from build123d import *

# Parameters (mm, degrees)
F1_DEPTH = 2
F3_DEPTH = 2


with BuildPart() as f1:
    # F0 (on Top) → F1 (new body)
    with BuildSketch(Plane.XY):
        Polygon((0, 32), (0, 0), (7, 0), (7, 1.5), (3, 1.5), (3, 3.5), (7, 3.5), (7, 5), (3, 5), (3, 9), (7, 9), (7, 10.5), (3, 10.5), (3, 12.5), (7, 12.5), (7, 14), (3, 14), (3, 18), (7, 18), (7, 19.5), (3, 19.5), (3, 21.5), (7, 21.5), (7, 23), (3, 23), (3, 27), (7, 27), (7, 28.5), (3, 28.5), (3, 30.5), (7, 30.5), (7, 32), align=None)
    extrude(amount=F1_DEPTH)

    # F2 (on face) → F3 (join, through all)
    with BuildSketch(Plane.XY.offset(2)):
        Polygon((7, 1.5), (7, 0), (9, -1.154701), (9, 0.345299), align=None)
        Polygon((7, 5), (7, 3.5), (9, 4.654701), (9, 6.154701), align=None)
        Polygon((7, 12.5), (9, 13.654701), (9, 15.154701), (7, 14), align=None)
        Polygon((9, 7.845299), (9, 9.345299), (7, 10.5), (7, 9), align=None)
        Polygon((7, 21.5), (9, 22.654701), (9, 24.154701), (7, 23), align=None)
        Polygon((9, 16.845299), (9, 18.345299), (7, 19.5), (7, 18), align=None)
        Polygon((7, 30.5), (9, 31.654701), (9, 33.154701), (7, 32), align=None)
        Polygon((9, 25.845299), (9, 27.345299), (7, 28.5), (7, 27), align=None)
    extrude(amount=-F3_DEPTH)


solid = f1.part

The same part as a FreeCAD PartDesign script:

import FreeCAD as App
import Part
import Sketcher
Q = App.Units.Quantity

doc = App.newDocument("Part")
body = doc.addObject("PartDesign::Body", "Body")

# Sketch on XY plane
sketch1 = body.newObject("Sketcher::SketchObject", "Sketch")
sketch1.AttachmentSupport = (doc.getObject("XY_Plane"), [""])
sketch1.MapMode = "FlatFace"
sketch1.addGeometry(Part.LineSegment(App.Vector(0, 32, 0), App.Vector(0, 0, 0)), False)
sketch1.addGeometry(Part.LineSegment(App.Vector(0, 0, 0), App.Vector(7, 0, 0)), False)
sketch1.addGeometry(Part.LineSegment(App.Vector(7, 0, 0), App.Vector(7, 1.5, 0)), False)
sketch1.addGeometry(Part.LineSegment(App.Vector(7, 1.5, 0), App.Vector(3, 1.5, 0)), False)
sketch1.addGeometry(Part.LineSegment(App.Vector(3, 1.5, 0), App.Vector(3, 3.5, 0)), False)
sketch1.addGeometry(Part.LineSegment(App.Vector(3, 3.5, 0), App.Vector(7, 3.5, 0)), False)
sketch1.addGeometry(Part.LineSegment(App.Vector(7, 3.5, 0), App.Vector(7, 5, 0)), False)
sketch1.addGeometry(Part.LineSegment(App.Vector(7, 5, 0), App.Vector(3, 5, 0)), False)
sketch1.addGeometry(Part.LineSegment(App.Vector(3, 5, 0), App.Vector(3, 9, 0)), False)
sketch1.addGeometry(Part.LineSegment(App.Vector(3, 9, 0), App.Vector(7, 9, 0)), False)
sketch1.addGeometry(Part.LineSegment(App.Vector(7, 9, 0), App.Vector(7, 10.5, 0)), False)
sketch1.addGeometry(Part.LineSegment(App.Vector(7, 10.5, 0), App.Vector(3, 10.5, 0)), False)
sketch1.addGeometry(Part.LineSegment(App.Vector(3, 10.5, 0), App.Vector(3, 12.5, 0)), False)
sketch1.addGeometry(Part.LineSegment(App.Vector(3, 12.5, 0), App.Vector(7, 12.5, 0)), False)
sketch1.addGeometry(Part.LineSegment(App.Vector(7, 12.5, 0), App.Vector(7, 14, 0)), False)
sketch1.addGeometry(Part.LineSegment(App.Vector(7, 14, 0), App.Vector(3, 14, 0)), False)
sketch1.addGeometry(Part.LineSegment(App.Vector(3, 14, 0), App.Vector(3, 18, 0)), False)
sketch1.addGeometry(Part.LineSegment(App.Vector(3, 18, 0), App.Vector(7, 18, 0)), False)
sketch1.addGeometry(Part.LineSegment(App.Vector(7, 18, 0), App.Vector(7, 19.5, 0)), False)
sketch1.addGeometry(Part.LineSegment(App.Vector(7, 19.5, 0), App.Vector(3, 19.5, 0)), False)
sketch1.addGeometry(Part.LineSegment(App.Vector(3, 19.5, 0), App.Vector(3, 21.5, 0)), False)
sketch1.addGeometry(Part.LineSegment(App.Vector(3, 21.5, 0), App.Vector(7, 21.5, 0)), False)
sketch1.addGeometry(Part.LineSegment(App.Vector(7, 21.5, 0), App.Vector(7, 23, 0)), False)
sketch1.addGeometry(Part.LineSegment(App.Vector(7, 23, 0), App.Vector(3, 23, 0)), False)
sketch1.addGeometry(Part.LineSegment(App.Vector(3, 23, 0), App.Vector(3, 27, 0)), False)
sketch1.addGeometry(Part.LineSegment(App.Vector(3, 27, 0), App.Vector(7, 27, 0)), False)
sketch1.addGeometry(Part.LineSegment(App.Vector(7, 27, 0), App.Vector(7, 28.5, 0)), False)
sketch1.addGeometry(Part.LineSegment(App.Vector(7, 28.5, 0), App.Vector(3, 28.5, 0)), False)
sketch1.addGeometry(Part.LineSegment(App.Vector(3, 28.5, 0), App.Vector(3, 30.5, 0)), False)
sketch1.addGeometry(Part.LineSegment(App.Vector(3, 30.5, 0), App.Vector(7, 30.5, 0)), False)
sketch1.addGeometry(Part.LineSegment(App.Vector(7, 30.5, 0), App.Vector(7, 32, 0)), False)
sketch1.addGeometry(Part.LineSegment(App.Vector(7, 32, 0), App.Vector(0, 32, 0)), False)
sketch1.addConstraint(Sketcher.Constraint("Coincident", 0, 2, 1, 1))
sketch1.addConstraint(Sketcher.Constraint("Coincident", 1, 2, 2, 1))
sketch1.addConstraint(Sketcher.Constraint("Coincident", 2, 2, 3, 1))
sketch1.addConstraint(Sketcher.Constraint("Coincident", 3, 2, 4, 1))
sketch1.addConstraint(Sketcher.Constraint("Coincident", 4, 2, 5, 1))
sketch1.addConstraint(Sketcher.Constraint("Coincident", 5, 2, 6, 1))
sketch1.addConstraint(Sketcher.Constraint("Coincident", 6, 2, 7, 1))
sketch1.addConstraint(Sketcher.Constraint("Coincident", 7, 2, 8, 1))
sketch1.addConstraint(Sketcher.Constraint("Coincident", 8, 2, 9, 1))
sketch1.addConstraint(Sketcher.Constraint("Coincident", 9, 2, 10, 1))
sketch1.addConstraint(Sketcher.Constraint("Coincident", 10, 2, 11, 1))
sketch1.addConstraint(Sketcher.Constraint("Coincident", 11, 2, 12, 1))
sketch1.addConstraint(Sketcher.Constraint("Coincident", 12, 2, 13, 1))
sketch1.addConstraint(Sketcher.Constraint("Coincident", 13, 2, 14, 1))
sketch1.addConstraint(Sketcher.Constraint("Coincident", 14, 2, 15, 1))
sketch1.addConstraint(Sketcher.Constraint("Coincident", 15, 2, 16, 1))
sketch1.addConstraint(Sketcher.Constraint("Coincident", 16, 2, 17, 1))
sketch1.addConstraint(Sketcher.Constraint("Coincident", 17, 2, 18, 1))
sketch1.addConstraint(Sketcher.Constraint("Coincident", 18, 2, 19, 1))
sketch1.addConstraint(Sketcher.Constraint("Coincident", 19, 2, 20, 1))
sketch1.addConstraint(Sketcher.Constraint("Coincident", 20, 2, 21, 1))
sketch1.addConstraint(Sketcher.Constraint("Coincident", 21, 2, 22, 1))
sketch1.addConstraint(Sketcher.Constraint("Coincident", 22, 2, 23, 1))
sketch1.addConstraint(Sketcher.Constraint("Coincident", 23, 2, 24, 1))
sketch1.addConstraint(Sketcher.Constraint("Coincident", 24, 2, 25, 1))
sketch1.addConstraint(Sketcher.Constraint("Coincident", 25, 2, 26, 1))
sketch1.addConstraint(Sketcher.Constraint("Coincident", 26, 2, 27, 1))
sketch1.addConstraint(Sketcher.Constraint("Coincident", 27, 2, 28, 1))
sketch1.addConstraint(Sketcher.Constraint("Coincident", 28, 2, 29, 1))
sketch1.addConstraint(Sketcher.Constraint("Coincident", 29, 2, 30, 1))
sketch1.addConstraint(Sketcher.Constraint("Coincident", 30, 2, 31, 1))
sketch1.addConstraint(Sketcher.Constraint("Coincident", 31, 2, 0, 1))
sketch1.addConstraint(Sketcher.Constraint("Vertical", 0))
sketch1.addConstraint(Sketcher.Constraint("Horizontal", 1))
sketch1.addConstraint(Sketcher.Constraint("Vertical", 2))
sketch1.addConstraint(Sketcher.Constraint("Horizontal", 3))
sketch1.addConstraint(Sketcher.Constraint("Vertical", 4))
sketch1.addConstraint(Sketcher.Constraint("Horizontal", 5))
sketch1.addConstraint(Sketcher.Constraint("Vertical", 6))
sketch1.addConstraint(Sketcher.Constraint("Horizontal", 7))
sketch1.addConstraint(Sketcher.Constraint("Vertical", 8))
sketch1.addConstraint(Sketcher.Constraint("Horizontal", 9))
sketch1.addConstraint(Sketcher.Constraint("Vertical", 10))
sketch1.addConstraint(Sketcher.Constraint("Horizontal", 11))
sketch1.addConstraint(Sketcher.Constraint("Vertical", 12))
sketch1.addConstraint(Sketcher.Constraint("Horizontal", 13))
sketch1.addConstraint(Sketcher.Constraint("Vertical", 14))
sketch1.addConstraint(Sketcher.Constraint("Horizontal", 15))
sketch1.addConstraint(Sketcher.Constraint("Vertical", 16))
sketch1.addConstraint(Sketcher.Constraint("Horizontal", 17))
sketch1.addConstraint(Sketcher.Constraint("Vertical", 18))
sketch1.addConstraint(Sketcher.Constraint("Horizontal", 19))
sketch1.addConstraint(Sketcher.Constraint("Vertical", 20))
sketch1.addConstraint(Sketcher.Constraint("Horizontal", 21))
sketch1.addConstraint(Sketcher.Constraint("Vertical", 22))
sketch1.addConstraint(Sketcher.Constraint("Horizontal", 23))
sketch1.addConstraint(Sketcher.Constraint("Vertical", 24))
sketch1.addConstraint(Sketcher.Constraint("Horizontal", 25))
sketch1.addConstraint(Sketcher.Constraint("Vertical", 26))
sketch1.addConstraint(Sketcher.Constraint("Horizontal", 27))
sketch1.addConstraint(Sketcher.Constraint("Vertical", 28))
sketch1.addConstraint(Sketcher.Constraint("Horizontal", 29))
sketch1.addConstraint(Sketcher.Constraint("Vertical", 30))
sketch1.addConstraint(Sketcher.Constraint("Horizontal", 31))
sketch1.addConstraint(Sketcher.Constraint("Coincident", 0, 2, -1, 1))
sketch1.addConstraint(Sketcher.Constraint("Vertical", 2, 2, 5, 2))
sketch1.addConstraint(Sketcher.Constraint("Vertical", 4, 2, 7, 2))
sketch1.addConstraint(Sketcher.Constraint("Vertical", 6, 2, 9, 2))
sketch1.addConstraint(Sketcher.Constraint("Vertical", 8, 2, 11, 2))
sketch1.addConstraint(Sketcher.Constraint("Vertical", 10, 2, 13, 2))
sketch1.addConstraint(Sketcher.Constraint("Vertical", 12, 2, 15, 2))
sketch1.addConstraint(Sketcher.Constraint("Vertical", 14, 2, 17, 2))
sketch1.addConstraint(Sketcher.Constraint("Vertical", 16, 2, 19, 2))
sketch1.addConstraint(Sketcher.Constraint("Vertical", 18, 2, 21, 2))
sketch1.addConstraint(Sketcher.Constraint("Vertical", 20, 2, 23, 2))
sketch1.addConstraint(Sketcher.Constraint("Vertical", 22, 2, 25, 2))
sketch1.addConstraint(Sketcher.Constraint("Vertical", 24, 2, 27, 2))
sketch1.addConstraint(Sketcher.Constraint("Vertical", 26, 2, 29, 2))
sketch1.addConstraint(Sketcher.Constraint("Equal", 2, 6))
sketch1.addConstraint(Sketcher.Constraint("Equal", 29, 8))
sketch1.addConstraint(Sketcher.Constraint("Equal", 6, 10))
sketch1.addConstraint(Sketcher.Constraint("Equal", 4, 12))
sketch1.addConstraint(Sketcher.Constraint("Equal", 10, 14))
sketch1.addConstraint(Sketcher.Constraint("Equal", 8, 16))
sketch1.addConstraint(Sketcher.Constraint("Equal", 14, 18))
sketch1.addConstraint(Sketcher.Constraint("Equal", 12, 20))
sketch1.addConstraint(Sketcher.Constraint("Equal", 18, 22))
sketch1.addConstraint(Sketcher.Constraint("Equal", 16, 24))
sketch1.addConstraint(Sketcher.Constraint("Equal", 22, 26))
sketch1.addConstraint(Sketcher.Constraint("Equal", 20, 28))
sketch1.addConstraint(Sketcher.Constraint("Equal", 26, 30))
sketch1.addConstraint(Sketcher.Constraint("DistanceX", 1, 1, 1, 2, Q("7 mm")))
sketch1.addConstraint(Sketcher.Constraint("DistanceX", 3, 2, 3, 1, Q("4 mm")))
sketch1.addConstraint(Sketcher.Constraint("DistanceY", 0, 2, 0, 1, Q("32 mm")))
sketch1.addConstraint(Sketcher.Constraint("DistanceY", 4, 1, 4, 2, Q("2 mm")))
pad1 = body.newObject("PartDesign::Pad", "Pad")
pad1.Profile = sketch1
pad1.Length = 2

# Sketch on XY plane
sketch2 = body.newObject("Sketcher::SketchObject", "Sketch001")
sketch2.AttachmentSupport = (doc.getObject("XY_Plane"), [""])
sketch2.MapMode = "FlatFace"
sketch2.AttachmentOffset = App.Placement(App.Vector(0, 0, 2), App.Rotation())
sketch2.addGeometry(Part.LineSegment(App.Vector(7, 1.5, 0), App.Vector(7, 0, 0)), False)
sketch2.addGeometry(Part.LineSegment(App.Vector(7, 0, 0), App.Vector(9, -1.2, 0)), False)
sketch2.addGeometry(Part.LineSegment(App.Vector(9, -1.2, 0), App.Vector(9, 0.3, 0)), False)
sketch2.addGeometry(Part.LineSegment(App.Vector(9, 0.3, 0), App.Vector(7, 1.5, 0)), False)
sketch2.addGeometry(Part.LineSegment(App.Vector(7, 5, 0), App.Vector(7, 3.5, 0)), False)
sketch2.addGeometry(Part.LineSegment(App.Vector(7, 3.5, 0), App.Vector(9, 4.7, 0)), False)
sketch2.addGeometry(Part.LineSegment(App.Vector(9, 4.7, 0), App.Vector(9, 6.2, 0)), False)
sketch2.addGeometry(Part.LineSegment(App.Vector(9, 6.2, 0), App.Vector(7, 5, 0)), False)
sketch2.addGeometry(Part.LineSegment(App.Vector(7, 12.5, 0), App.Vector(9, 13.7, 0)), False)
sketch2.addGeometry(Part.LineSegment(App.Vector(9, 13.7, 0), App.Vector(9, 15.2, 0)), False)
sketch2.addGeometry(Part.LineSegment(App.Vector(9, 15.2, 0), App.Vector(7, 14, 0)), False)
sketch2.addGeometry(Part.LineSegment(App.Vector(7, 14, 0), App.Vector(7, 12.5, 0)), False)
sketch2.addGeometry(Part.LineSegment(App.Vector(9, 7.8, 0), App.Vector(9, 9.3, 0)), False)
sketch2.addGeometry(Part.LineSegment(App.Vector(9, 9.3, 0), App.Vector(7, 10.5, 0)), False)
sketch2.addGeometry(Part.LineSegment(App.Vector(7, 10.5, 0), App.Vector(7, 9, 0)), False)
sketch2.addGeometry(Part.LineSegment(App.Vector(7, 9, 0), App.Vector(9, 7.8, 0)), False)
sketch2.addGeometry(Part.LineSegment(App.Vector(7, 21.5, 0), App.Vector(9, 22.7, 0)), False)
sketch2.addGeometry(Part.LineSegment(App.Vector(9, 22.7, 0), App.Vector(9, 24.2, 0)), False)
sketch2.addGeometry(Part.LineSegment(App.Vector(9, 24.2, 0), App.Vector(7, 23, 0)), False)
sketch2.addGeometry(Part.LineSegment(App.Vector(7, 23, 0), App.Vector(7, 21.5, 0)), False)
sketch2.addGeometry(Part.LineSegment(App.Vector(9, 16.8, 0), App.Vector(9, 18.3, 0)), False)
sketch2.addGeometry(Part.LineSegment(App.Vector(9, 18.3, 0), App.Vector(7, 19.5, 0)), False)
sketch2.addGeometry(Part.LineSegment(App.Vector(7, 19.5, 0), App.Vector(7, 18, 0)), False)
sketch2.addGeometry(Part.LineSegment(App.Vector(7, 18, 0), App.Vector(9, 16.8, 0)), False)
sketch2.addGeometry(Part.LineSegment(App.Vector(7, 30.5, 0), App.Vector(9, 31.7, 0)), False)
sketch2.addGeometry(Part.LineSegment(App.Vector(9, 31.7, 0), App.Vector(9, 33.2, 0)), False)
sketch2.addGeometry(Part.LineSegment(App.Vector(9, 33.2, 0), App.Vector(7, 32, 0)), False)
sketch2.addGeometry(Part.LineSegment(App.Vector(7, 32, 0), App.Vector(7, 30.5, 0)), False)
sketch2.addGeometry(Part.LineSegment(App.Vector(9, 25.8, 0), App.Vector(9, 27.3, 0)), False)
sketch2.addGeometry(Part.LineSegment(App.Vector(9, 27.3, 0), App.Vector(7, 28.5, 0)), False)
sketch2.addGeometry(Part.LineSegment(App.Vector(7, 28.5, 0), App.Vector(7, 27, 0)), False)
sketch2.addGeometry(Part.LineSegment(App.Vector(7, 27, 0), App.Vector(9, 25.8, 0)), False)
sketch2.addConstraint(Sketcher.Constraint("Coincident", 0, 2, 1, 1))
sketch2.addConstraint(Sketcher.Constraint("Coincident", 1, 2, 2, 1))
sketch2.addConstraint(Sketcher.Constraint("Coincident", 2, 2, 3, 1))
sketch2.addConstraint(Sketcher.Constraint("Coincident", 3, 2, 0, 1))
sketch2.addConstraint(Sketcher.Constraint("Coincident", 4, 2, 5, 1))
sketch2.addConstraint(Sketcher.Constraint("Coincident", 5, 2, 6, 1))
sketch2.addConstraint(Sketcher.Constraint("Coincident", 6, 2, 7, 1))
sketch2.addConstraint(Sketcher.Constraint("Coincident", 7, 2, 4, 1))
sketch2.addConstraint(Sketcher.Constraint("Coincident", 8, 2, 9, 1))
sketch2.addConstraint(Sketcher.Constraint("Coincident", 9, 2, 10, 1))
sketch2.addConstraint(Sketcher.Constraint("Coincident", 10, 2, 11, 1))
sketch2.addConstraint(Sketcher.Constraint("Coincident", 11, 2, 8, 1))
sketch2.addConstraint(Sketcher.Constraint("Coincident", 12, 2, 13, 1))
sketch2.addConstraint(Sketcher.Constraint("Coincident", 13, 2, 14, 1))
sketch2.addConstraint(Sketcher.Constraint("Coincident", 14, 2, 15, 1))
sketch2.addConstraint(Sketcher.Constraint("Coincident", 15, 2, 12, 1))
sketch2.addConstraint(Sketcher.Constraint("Coincident", 16, 2, 17, 1))
sketch2.addConstraint(Sketcher.Constraint("Coincident", 17, 2, 18, 1))
sketch2.addConstraint(Sketcher.Constraint("Coincident", 18, 2, 19, 1))
sketch2.addConstraint(Sketcher.Constraint("Coincident", 19, 2, 16, 1))
sketch2.addConstraint(Sketcher.Constraint("Coincident", 20, 2, 21, 1))
sketch2.addConstraint(Sketcher.Constraint("Coincident", 21, 2, 22, 1))
sketch2.addConstraint(Sketcher.Constraint("Coincident", 22, 2, 23, 1))
sketch2.addConstraint(Sketcher.Constraint("Coincident", 23, 2, 20, 1))
sketch2.addConstraint(Sketcher.Constraint("Coincident", 24, 2, 25, 1))
sketch2.addConstraint(Sketcher.Constraint("Coincident", 25, 2, 26, 1))
sketch2.addConstraint(Sketcher.Constraint("Coincident", 26, 2, 27, 1))
sketch2.addConstraint(Sketcher.Constraint("Coincident", 27, 2, 24, 1))
sketch2.addConstraint(Sketcher.Constraint("Coincident", 28, 2, 29, 1))
sketch2.addConstraint(Sketcher.Constraint("Coincident", 29, 2, 30, 1))
sketch2.addConstraint(Sketcher.Constraint("Coincident", 30, 2, 31, 1))
sketch2.addConstraint(Sketcher.Constraint("Coincident", 31, 2, 28, 1))
sketch2.addConstraint(Sketcher.Constraint("Vertical", 0))
sketch2.addConstraint(Sketcher.Constraint("Vertical", 2))
sketch2.addConstraint(Sketcher.Constraint("Vertical", 4))
sketch2.addConstraint(Sketcher.Constraint("Vertical", 6))
sketch2.addConstraint(Sketcher.Constraint("Vertical", 9))
sketch2.addConstraint(Sketcher.Constraint("Vertical", 11))
sketch2.addConstraint(Sketcher.Constraint("Vertical", 12))
sketch2.addConstraint(Sketcher.Constraint("Vertical", 14))
sketch2.addConstraint(Sketcher.Constraint("Vertical", 17))
sketch2.addConstraint(Sketcher.Constraint("Vertical", 19))
sketch2.addConstraint(Sketcher.Constraint("Vertical", 20))
sketch2.addConstraint(Sketcher.Constraint("Vertical", 22))
sketch2.addConstraint(Sketcher.Constraint("Vertical", 25))
sketch2.addConstraint(Sketcher.Constraint("Vertical", 27))
sketch2.addConstraint(Sketcher.Constraint("Vertical", 28))
sketch2.addConstraint(Sketcher.Constraint("Vertical", 30))
sketch2.addConstraint(Sketcher.Constraint("PointOnObject", 0, 2, -1))
sketch2.addConstraint(Sketcher.Constraint("Parallel", 1, 3))
sketch2.addConstraint(Sketcher.Constraint("Parallel", 5, 7))
sketch2.addConstraint(Sketcher.Constraint("Parallel", 7, 8))
sketch2.addConstraint(Sketcher.Constraint("Parallel", 8, 10))
sketch2.addConstraint(Sketcher.Constraint("Parallel", 3, 13))
sketch2.addConstraint(Sketcher.Constraint("Parallel", 13, 15))
sketch2.addConstraint(Sketcher.Constraint("Parallel", 10, 16))
sketch2.addConstraint(Sketcher.Constraint("Parallel", 16, 18))
sketch2.addConstraint(Sketcher.Constraint("Parallel", 15, 21))
sketch2.addConstraint(Sketcher.Constraint("Parallel", 21, 23))
sketch2.addConstraint(Sketcher.Constraint("Parallel", 18, 24))
sketch2.addConstraint(Sketcher.Constraint("Parallel", 24, 26))
sketch2.addConstraint(Sketcher.Constraint("Parallel", 23, 29))
sketch2.addConstraint(Sketcher.Constraint("Parallel", 29, 31))
sketch2.addConstraint(Sketcher.Constraint("Vertical", 3, 2, 4, 2))
sketch2.addConstraint(Sketcher.Constraint("Vertical", 2, 2, 5, 2))
sketch2.addConstraint(Sketcher.Constraint("Vertical", 6, 2, 8, 2))
sketch2.addConstraint(Sketcher.Constraint("Vertical", 7, 2, 10, 2))
sketch2.addConstraint(Sketcher.Constraint("Vertical", 9, 2, 12, 2))
sketch2.addConstraint(Sketcher.Constraint("Vertical", 11, 2, 13, 2))
sketch2.addConstraint(Sketcher.Constraint("Vertical", 15, 2, 16, 2))
sketch2.addConstraint(Sketcher.Constraint("Vertical", 14, 2, 18, 2))
sketch2.addConstraint(Sketcher.Constraint("Vertical", 17, 2, 20, 2))
sketch2.addConstraint(Sketcher.Constraint("Vertical", 19, 2, 21, 2))
sketch2.addConstraint(Sketcher.Constraint("Vertical", 23, 2, 24, 2))
sketch2.addConstraint(Sketcher.Constraint("Vertical", 22, 2, 26, 2))
sketch2.addConstraint(Sketcher.Constraint("Vertical", 25, 2, 28, 2))
sketch2.addConstraint(Sketcher.Constraint("Vertical", 27, 2, 29, 2))
sketch2.addConstraint(Sketcher.Constraint("Equal", 2, 4))
sketch2.addConstraint(Sketcher.Constraint("Equal", 6, 9))
sketch2.addConstraint(Sketcher.Constraint("Equal", 11, 12))
sketch2.addConstraint(Sketcher.Constraint("Equal", 14, 17))
sketch2.addConstraint(Sketcher.Constraint("Equal", 19, 20))
sketch2.addConstraint(Sketcher.Constraint("Equal", 22, 25))
sketch2.addConstraint(Sketcher.Constraint("Equal", 27, 28))
sketch2.addConstraint(Sketcher.Constraint("Equal", 3, 5))
sketch2.addConstraint(Sketcher.Constraint("Angle", 1, Q("-30.00001 deg")))
sketch2.addConstraint(Sketcher.Constraint("DistanceY", 0, 2, 0, 1, Q("1.5 mm")))
sketch2.addConstraint(Sketcher.Constraint("DistanceX", -1, 1, 0, 2, Q("7 mm")))
sketch2.addConstraint(Sketcher.Constraint("DistanceX", -1, 1, 1, 2, Q("9 mm")))
sketch2.addConstraint(Sketcher.Constraint("DistanceY", -1, 1, 7, 2, Q("5 mm")))
sketch2.addConstraint(Sketcher.Constraint("DistanceY", -1, 1, 10, 2, Q("14 mm")))
sketch2.addConstraint(Sketcher.Constraint("DistanceY", -1, 1, 14, 2, Q("9 mm")))
sketch2.addConstraint(Sketcher.Constraint("DistanceY", -1, 1, 18, 2, Q("23 mm")))
sketch2.addConstraint(Sketcher.Constraint("DistanceY", -1, 1, 22, 2, Q("18 mm")))
sketch2.addConstraint(Sketcher.Constraint("DistanceY", -1, 1, 26, 2, Q("32 mm")))
sketch2.addConstraint(Sketcher.Constraint("DistanceY", -1, 1, 30, 2, Q("27 mm")))
pad2 = body.newObject("PartDesign::Pad", "Pad001")
pad2.Profile = sketch2
pad2.Length = 2
pad2.Reversed = True

doc.recompute()
